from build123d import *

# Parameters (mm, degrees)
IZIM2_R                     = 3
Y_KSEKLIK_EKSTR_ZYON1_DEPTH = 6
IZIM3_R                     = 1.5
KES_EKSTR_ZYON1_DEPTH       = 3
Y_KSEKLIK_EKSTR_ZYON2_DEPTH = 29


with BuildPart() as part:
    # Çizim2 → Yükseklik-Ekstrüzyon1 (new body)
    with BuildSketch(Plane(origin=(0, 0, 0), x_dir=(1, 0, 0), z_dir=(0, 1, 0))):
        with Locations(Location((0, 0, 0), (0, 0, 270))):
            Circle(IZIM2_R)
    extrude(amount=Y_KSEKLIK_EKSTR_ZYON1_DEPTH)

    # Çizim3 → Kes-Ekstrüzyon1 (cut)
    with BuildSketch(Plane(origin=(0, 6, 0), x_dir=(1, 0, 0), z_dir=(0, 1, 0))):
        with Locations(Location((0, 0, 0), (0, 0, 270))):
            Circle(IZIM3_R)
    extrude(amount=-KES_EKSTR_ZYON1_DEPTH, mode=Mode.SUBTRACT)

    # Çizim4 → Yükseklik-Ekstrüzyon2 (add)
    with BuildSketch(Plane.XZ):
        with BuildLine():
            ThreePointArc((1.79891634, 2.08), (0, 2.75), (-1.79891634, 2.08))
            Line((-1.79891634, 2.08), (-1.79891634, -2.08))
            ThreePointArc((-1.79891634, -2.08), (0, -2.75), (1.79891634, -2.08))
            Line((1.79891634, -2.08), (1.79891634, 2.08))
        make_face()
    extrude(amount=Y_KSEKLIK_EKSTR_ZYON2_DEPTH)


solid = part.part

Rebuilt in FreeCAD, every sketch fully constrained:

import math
import FreeCAD as App
import Part
import Sketcher
Q = App.Units.Quantity

doc = App.newDocument("Part")
params = doc.addObject("Spreadsheet::Sheet", "Params")
for row, (alias, value) in enumerate([
    ("sketch1_diameter", "6 mm"),
    ("pad1_length", "6 mm"),
    ("sketch2_diameter", "3 mm"),
    ("pocket1_length", "3 mm"),
    ("sketch3_radius", "2.75 mm"),
    ("sketch3_height", "4.16 mm"),
    ("pad2_length", "29 mm"),
], start=1):
    params.set(f"A{row}", alias)
    params.set(f"B{row}", "=" + value)
    params.setAlias(f"B{row}", alias)

body = doc.addObject("PartDesign::Body", "Body")

sketch1 = body.newObject("Sketcher::SketchObject", "Sketch")
sketch1.AttachmentSupport = (doc.getObject("XZ_Plane"), [""])
sketch1.MapMode = "FlatFace"
sketch1.addGeometry(Part.Circle(App.Vector(0, 0, 0), App.Vector(0, 0, 1), 3), False)
sketch1.addConstraint(Sketcher.Constraint("Coincident", 0, 3, -1, 1))
sketch1.addConstraint(Sketcher.Constraint("Diameter", 0, Q("6 mm")))
sketch1.setExpression("Constraints[1]", "Params.sketch1_diameter")
pad1 = body.newObject("PartDesign::Pad", "Pad")
pad1.Profile = sketch1
pad1.setExpression("Length", "Params.pad1_length")
pad1.Reversed = True

sketch2 = body.newObject("Sketcher::SketchObject", "Sketch001")
sketch2.AttachmentSupport = (doc.getObject("XZ_Plane"), [""])
sketch2.MapMode = "FlatFace"
sketch2.AttachmentOffset = App.Placement(App.Vector(0, 0, -6), App.Rotation())
sketch2.addGeometry(Part.Circle(App.Vector(0, 0, 0), App.Vector(0, 0, 1), 1.5), False)
sketch2.addConstraint(Sketcher.Constraint("Coincident", 0, 3, -1, 1))
sketch2.addConstraint(Sketcher.Constraint("Diameter", 0, Q("3 mm")))
sketch2.setExpression("Constraints[1]", "Params.sketch2_diameter")
pocket1 = body.newObject("PartDesign::Pocket", "Pocket")
pocket1.Profile = sketch2
pocket1.setExpression("Length", "Params.pocket1_length")
pocket1.Reversed = True

sketch3 = body.newObject("Sketcher::SketchObject", "Sketch002")
sketch3.AttachmentSupport = (doc.getObject("XZ_Plane"), [""])
sketch3.MapMode = "FlatFace"
sketch3.addGeometry(Part.ArcOfCircle(Part.Circle(App.Vector(0, 0, 0), App.Vector(0, 0, 1), 2.75), math.radians(49.144664), math.radians(130.855336)), False)
sketch3.addGeometry(Part.LineSegment(App.Vector(-1.798916, 2.08, 0), App.Vector(-1.798916, -2.08, 0)), False)
sketch3.addGeometry(Part.ArcOfCircle(Part.Circle(App.Vector(0, 0, 0), App.Vector(0, 0, 1), 2.75), math.radians(-130.855336), math.radians(-49.144664)), False)
sketch3.addGeometry(Part.LineSegment(App.Vector(1.798916, -2.08, 0), App.Vector(1.798916, 2.08, 0)), False)
sketch3.addConstraint(Sketcher.Constraint("Coincident", 0, 2, 1, 1))
sketch3.addConstraint(Sketcher.Constraint("Coincident", 1, 2, 2, 1))
sketch3.addConstraint(Sketcher.Constraint("Coincident", 2, 2, 3, 1))
sketch3.addConstraint(Sketcher.Constraint("Coincident", 3, 2, 0, 1))
sketch3.addConstraint(Sketcher.Constraint("Vertical", 1))
sketch3.addConstraint(Sketcher.Constraint("Vertical", 3))
sketch3.addConstraint(Sketcher.Constraint("Coincident", 0, 3, -1, 1))
sketch3.addConstraint(Sketcher.Constraint("Coincident", 2, 3, -1, 1))
sketch3.addConstraint(Sketcher.Constraint("Equal", 0, 2))
sketch3.addConstraint(Sketcher.Constraint("Horizontal", 1, 2, 2, 2))
sketch3.addConstraint(Sketcher.Constraint("Radius", 0, Q("2.75 mm")))
sketch3.addConstraint(Sketcher.Constraint("DistanceY", 1, 2, 1, 1, Q("4.16 mm")))
sketch3.setExpression("Constraints[10]", "Params.sketch3_radius")
sketch3.setExpression("Constraints[11]", "Params.sketch3_height")
pad2 = body.newObject("PartDesign::Pad", "Pad001")
pad2.Profile = sketch3
pad2.setExpression("Length", "Params.pad2_length")

doc.recompute()
